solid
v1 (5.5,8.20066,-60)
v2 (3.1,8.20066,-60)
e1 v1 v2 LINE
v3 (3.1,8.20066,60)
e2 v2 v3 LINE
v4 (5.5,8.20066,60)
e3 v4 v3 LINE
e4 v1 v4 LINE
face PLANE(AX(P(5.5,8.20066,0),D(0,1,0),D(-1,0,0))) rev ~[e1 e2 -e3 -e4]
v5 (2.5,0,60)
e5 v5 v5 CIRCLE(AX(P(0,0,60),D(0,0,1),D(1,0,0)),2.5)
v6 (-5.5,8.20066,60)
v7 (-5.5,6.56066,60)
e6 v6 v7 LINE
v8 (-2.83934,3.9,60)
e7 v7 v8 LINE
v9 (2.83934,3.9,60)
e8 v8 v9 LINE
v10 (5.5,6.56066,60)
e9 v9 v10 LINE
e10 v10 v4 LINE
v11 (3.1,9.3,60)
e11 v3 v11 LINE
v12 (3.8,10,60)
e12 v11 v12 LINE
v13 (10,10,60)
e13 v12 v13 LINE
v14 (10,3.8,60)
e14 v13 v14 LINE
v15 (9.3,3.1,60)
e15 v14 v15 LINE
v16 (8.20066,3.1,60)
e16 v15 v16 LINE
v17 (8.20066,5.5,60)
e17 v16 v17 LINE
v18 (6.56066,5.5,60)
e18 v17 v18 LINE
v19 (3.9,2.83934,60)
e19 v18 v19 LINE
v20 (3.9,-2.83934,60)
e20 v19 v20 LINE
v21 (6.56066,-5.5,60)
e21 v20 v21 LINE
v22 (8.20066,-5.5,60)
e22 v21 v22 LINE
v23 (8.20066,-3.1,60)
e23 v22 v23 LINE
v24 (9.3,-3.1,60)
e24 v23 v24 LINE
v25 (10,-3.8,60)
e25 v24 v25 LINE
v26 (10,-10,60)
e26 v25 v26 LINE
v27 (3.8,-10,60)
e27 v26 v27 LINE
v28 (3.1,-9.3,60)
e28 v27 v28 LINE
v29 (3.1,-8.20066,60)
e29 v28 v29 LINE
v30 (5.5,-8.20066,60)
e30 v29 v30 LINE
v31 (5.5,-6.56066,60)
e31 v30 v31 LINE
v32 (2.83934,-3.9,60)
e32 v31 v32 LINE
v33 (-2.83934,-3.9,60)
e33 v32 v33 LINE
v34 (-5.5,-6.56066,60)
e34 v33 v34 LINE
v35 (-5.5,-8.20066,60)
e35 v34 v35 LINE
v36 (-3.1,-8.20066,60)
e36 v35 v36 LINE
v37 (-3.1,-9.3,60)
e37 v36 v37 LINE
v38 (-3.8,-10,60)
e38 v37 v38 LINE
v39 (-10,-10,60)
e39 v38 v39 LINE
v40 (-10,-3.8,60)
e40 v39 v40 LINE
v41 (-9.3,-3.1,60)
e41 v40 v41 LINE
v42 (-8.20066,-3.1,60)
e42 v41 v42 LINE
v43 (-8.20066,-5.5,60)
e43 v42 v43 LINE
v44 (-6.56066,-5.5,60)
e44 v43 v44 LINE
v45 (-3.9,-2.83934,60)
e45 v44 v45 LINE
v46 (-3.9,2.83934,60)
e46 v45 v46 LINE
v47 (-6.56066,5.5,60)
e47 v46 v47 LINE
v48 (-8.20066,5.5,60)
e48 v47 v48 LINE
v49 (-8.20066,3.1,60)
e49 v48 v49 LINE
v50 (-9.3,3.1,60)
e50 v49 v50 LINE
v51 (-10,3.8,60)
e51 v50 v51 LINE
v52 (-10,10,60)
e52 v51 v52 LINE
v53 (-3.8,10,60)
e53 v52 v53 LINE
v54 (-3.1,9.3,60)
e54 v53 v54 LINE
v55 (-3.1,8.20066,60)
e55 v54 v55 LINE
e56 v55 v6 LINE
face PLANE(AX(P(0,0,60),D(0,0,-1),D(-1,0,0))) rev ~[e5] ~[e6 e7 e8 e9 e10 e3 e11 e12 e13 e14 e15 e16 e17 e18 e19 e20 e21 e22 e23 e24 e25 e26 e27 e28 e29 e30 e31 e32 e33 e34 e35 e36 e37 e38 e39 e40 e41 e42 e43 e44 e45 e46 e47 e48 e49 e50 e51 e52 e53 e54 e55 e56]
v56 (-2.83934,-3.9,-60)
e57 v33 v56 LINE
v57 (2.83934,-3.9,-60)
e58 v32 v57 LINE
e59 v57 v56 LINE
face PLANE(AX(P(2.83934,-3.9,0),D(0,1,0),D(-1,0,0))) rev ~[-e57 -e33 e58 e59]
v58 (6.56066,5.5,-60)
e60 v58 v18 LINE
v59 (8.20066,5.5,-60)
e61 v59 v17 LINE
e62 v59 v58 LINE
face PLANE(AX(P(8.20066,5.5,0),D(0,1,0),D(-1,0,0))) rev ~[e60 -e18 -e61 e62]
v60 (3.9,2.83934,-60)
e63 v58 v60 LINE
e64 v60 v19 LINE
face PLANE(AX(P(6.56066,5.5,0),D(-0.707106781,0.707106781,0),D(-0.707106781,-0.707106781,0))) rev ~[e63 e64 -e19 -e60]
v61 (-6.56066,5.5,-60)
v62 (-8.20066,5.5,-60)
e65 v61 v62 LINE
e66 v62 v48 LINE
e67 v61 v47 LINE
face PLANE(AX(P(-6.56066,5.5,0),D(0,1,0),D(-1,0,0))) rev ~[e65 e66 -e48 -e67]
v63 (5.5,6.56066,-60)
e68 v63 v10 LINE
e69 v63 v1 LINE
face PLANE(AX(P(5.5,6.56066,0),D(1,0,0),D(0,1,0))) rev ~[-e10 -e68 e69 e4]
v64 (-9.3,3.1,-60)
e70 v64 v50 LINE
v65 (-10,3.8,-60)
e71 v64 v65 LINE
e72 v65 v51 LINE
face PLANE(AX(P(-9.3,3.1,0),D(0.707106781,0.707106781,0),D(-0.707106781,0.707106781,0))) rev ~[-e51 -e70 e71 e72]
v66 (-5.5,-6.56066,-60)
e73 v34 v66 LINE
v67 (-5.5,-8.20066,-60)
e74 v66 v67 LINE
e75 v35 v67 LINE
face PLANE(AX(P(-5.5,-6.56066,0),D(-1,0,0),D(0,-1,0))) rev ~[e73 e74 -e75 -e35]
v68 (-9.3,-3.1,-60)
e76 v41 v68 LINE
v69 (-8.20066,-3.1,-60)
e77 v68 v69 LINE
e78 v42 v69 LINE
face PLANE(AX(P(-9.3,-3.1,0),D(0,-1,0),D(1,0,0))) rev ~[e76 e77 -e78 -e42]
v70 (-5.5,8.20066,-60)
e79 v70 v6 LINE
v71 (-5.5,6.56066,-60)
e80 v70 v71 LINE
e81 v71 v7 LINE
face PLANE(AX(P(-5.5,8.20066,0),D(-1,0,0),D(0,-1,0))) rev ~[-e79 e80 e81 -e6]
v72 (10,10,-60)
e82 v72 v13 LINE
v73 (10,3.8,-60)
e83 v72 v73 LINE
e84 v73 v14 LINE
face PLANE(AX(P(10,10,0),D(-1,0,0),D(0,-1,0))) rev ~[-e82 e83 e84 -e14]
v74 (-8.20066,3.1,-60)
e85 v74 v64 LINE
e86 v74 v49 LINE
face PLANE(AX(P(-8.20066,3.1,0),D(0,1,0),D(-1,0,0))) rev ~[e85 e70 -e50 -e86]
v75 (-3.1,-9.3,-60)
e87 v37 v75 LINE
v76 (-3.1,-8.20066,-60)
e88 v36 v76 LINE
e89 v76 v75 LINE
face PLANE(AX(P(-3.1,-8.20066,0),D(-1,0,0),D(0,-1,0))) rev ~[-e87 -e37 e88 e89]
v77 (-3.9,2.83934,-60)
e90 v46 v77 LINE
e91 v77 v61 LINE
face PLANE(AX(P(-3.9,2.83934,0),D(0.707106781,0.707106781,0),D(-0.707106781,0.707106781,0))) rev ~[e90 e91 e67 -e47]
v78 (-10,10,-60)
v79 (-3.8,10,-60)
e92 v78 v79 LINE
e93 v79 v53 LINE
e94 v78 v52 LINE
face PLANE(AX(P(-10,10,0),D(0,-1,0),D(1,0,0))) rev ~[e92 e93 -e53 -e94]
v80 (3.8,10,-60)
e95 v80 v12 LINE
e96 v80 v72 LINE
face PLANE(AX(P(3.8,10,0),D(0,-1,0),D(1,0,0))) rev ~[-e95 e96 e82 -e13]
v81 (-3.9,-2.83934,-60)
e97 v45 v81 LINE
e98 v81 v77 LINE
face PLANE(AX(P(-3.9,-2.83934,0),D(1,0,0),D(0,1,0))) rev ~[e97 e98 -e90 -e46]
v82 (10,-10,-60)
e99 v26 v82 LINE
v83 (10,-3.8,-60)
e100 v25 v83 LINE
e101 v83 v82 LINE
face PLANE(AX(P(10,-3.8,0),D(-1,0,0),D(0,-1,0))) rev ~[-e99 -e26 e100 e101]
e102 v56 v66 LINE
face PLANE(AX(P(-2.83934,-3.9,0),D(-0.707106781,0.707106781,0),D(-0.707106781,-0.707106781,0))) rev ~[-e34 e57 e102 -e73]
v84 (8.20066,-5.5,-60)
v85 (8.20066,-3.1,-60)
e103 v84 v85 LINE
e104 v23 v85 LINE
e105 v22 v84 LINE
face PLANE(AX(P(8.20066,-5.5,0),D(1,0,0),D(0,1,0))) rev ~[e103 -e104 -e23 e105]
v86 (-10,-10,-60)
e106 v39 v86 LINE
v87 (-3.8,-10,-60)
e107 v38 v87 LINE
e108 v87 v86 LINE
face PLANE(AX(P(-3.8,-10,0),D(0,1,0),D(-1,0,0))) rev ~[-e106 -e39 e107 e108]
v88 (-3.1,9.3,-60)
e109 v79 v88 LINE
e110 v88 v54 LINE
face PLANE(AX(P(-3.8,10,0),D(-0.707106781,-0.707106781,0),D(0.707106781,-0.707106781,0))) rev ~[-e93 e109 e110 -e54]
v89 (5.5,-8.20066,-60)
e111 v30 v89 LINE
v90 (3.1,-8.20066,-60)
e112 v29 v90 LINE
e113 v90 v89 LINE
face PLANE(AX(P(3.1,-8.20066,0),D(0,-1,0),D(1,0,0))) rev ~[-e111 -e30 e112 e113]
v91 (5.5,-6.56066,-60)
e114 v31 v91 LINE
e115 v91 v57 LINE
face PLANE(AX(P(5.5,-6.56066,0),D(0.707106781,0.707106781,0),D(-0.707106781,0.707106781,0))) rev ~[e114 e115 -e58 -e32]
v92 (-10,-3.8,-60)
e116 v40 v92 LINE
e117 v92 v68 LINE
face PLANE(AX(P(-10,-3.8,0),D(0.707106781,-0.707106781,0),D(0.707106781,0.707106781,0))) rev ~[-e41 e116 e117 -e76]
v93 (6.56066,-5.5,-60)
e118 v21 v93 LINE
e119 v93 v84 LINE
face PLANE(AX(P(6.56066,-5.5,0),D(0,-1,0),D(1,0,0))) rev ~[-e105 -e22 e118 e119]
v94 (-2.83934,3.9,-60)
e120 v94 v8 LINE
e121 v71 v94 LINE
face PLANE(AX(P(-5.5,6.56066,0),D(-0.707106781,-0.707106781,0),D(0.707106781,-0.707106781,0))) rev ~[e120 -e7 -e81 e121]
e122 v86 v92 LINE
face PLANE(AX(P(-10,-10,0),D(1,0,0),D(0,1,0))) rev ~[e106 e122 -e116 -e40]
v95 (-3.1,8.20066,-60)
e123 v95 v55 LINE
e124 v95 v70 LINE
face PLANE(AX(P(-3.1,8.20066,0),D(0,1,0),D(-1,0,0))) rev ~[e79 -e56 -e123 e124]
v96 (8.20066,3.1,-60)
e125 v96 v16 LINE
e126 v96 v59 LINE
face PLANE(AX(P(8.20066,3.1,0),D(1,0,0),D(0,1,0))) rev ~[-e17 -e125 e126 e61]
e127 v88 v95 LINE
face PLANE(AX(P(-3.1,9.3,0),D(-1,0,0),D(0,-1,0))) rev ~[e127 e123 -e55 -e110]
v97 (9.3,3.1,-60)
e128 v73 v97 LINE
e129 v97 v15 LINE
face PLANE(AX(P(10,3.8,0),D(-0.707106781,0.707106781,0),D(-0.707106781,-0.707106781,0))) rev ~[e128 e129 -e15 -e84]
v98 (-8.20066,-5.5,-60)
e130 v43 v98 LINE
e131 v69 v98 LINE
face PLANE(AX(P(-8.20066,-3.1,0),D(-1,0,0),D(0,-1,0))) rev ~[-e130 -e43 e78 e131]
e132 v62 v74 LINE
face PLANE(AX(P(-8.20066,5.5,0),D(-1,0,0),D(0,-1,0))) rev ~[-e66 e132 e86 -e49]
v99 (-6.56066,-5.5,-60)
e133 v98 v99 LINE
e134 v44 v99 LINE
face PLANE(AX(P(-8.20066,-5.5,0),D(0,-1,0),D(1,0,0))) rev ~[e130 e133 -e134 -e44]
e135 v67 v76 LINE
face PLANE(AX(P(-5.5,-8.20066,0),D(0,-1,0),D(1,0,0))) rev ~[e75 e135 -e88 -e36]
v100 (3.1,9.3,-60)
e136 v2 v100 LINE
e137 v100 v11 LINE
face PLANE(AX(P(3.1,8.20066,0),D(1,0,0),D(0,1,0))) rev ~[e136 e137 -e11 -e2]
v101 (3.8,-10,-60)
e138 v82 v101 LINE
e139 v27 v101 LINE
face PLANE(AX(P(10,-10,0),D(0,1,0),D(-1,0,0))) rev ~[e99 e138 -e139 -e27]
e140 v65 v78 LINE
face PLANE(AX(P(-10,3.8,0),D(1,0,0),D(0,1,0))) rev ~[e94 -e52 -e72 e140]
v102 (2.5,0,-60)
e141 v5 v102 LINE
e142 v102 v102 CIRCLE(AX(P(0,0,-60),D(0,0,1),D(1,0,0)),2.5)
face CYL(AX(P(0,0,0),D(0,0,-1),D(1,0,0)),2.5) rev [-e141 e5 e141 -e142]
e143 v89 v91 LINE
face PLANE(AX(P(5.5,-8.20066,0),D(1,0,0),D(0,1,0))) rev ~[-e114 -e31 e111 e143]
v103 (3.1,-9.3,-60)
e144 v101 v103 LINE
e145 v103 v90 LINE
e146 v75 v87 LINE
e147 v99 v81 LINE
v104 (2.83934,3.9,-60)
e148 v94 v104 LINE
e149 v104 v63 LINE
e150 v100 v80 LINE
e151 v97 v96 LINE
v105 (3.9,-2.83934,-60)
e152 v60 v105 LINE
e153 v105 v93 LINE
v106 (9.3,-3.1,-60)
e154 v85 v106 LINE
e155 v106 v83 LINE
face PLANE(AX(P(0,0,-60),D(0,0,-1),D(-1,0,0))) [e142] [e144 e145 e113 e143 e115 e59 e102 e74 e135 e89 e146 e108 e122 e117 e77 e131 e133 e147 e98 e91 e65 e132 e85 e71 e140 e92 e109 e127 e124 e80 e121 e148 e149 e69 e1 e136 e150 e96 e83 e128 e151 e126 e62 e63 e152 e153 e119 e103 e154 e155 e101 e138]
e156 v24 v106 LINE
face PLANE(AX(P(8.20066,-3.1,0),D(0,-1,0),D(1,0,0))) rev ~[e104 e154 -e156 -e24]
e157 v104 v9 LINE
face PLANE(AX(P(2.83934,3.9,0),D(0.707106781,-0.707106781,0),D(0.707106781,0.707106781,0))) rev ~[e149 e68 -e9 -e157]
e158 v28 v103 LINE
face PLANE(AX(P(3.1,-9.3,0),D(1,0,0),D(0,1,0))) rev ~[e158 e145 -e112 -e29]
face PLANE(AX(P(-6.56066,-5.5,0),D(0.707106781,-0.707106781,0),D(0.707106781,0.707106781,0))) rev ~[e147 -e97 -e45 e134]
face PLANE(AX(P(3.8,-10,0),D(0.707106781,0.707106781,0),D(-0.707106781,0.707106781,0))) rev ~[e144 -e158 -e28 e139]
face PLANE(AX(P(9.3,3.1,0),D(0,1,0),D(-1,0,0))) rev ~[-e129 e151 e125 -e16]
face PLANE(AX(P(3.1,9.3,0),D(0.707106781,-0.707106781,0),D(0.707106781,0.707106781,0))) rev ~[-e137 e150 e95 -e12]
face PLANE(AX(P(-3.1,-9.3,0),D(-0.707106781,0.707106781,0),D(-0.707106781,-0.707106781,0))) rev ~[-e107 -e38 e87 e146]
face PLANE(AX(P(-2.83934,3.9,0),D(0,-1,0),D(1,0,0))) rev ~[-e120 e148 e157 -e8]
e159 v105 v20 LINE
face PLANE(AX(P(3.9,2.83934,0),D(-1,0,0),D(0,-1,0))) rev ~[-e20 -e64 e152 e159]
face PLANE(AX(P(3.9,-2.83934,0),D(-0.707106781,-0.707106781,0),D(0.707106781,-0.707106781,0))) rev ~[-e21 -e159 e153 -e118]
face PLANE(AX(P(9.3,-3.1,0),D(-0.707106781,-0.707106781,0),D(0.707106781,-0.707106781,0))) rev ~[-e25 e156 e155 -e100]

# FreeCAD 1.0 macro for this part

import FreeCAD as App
import Part
import Sketcher
from FreeCAD import Vector
Q = App.Units.Quantity

doc = App.newDocument("Part")
body = doc.addObject("PartDesign::Body", "Body")

# Sketch on XY plane
sketch1 = body.newObject("Sketcher::SketchObject", "Sketch")
sketch1.AttachmentSupport = (doc.getObject("XY_Plane"), [""])
sketch1.MapMode = "FlatFace"
sketch1.addGeometry([
    Part.LineSegment(Vector(6.56066, -5.5, 0), Vector(3.9, -2.83934, 0)),  # 0
    Part.LineSegment(Vector(3.9, -2.83934, 0), Vector(3.9, 2.83934, 0)),  # 1
    Part.LineSegment(Vector(3.9, 2.83934, 0), Vector(6.56066, 5.5, 0)),  # 2
    Part.LineSegment(Vector(6.56066, 5.5, 0), Vector(8.20066, 5.5, 0)),  # 3
    Part.LineSegment(Vector(8.20066, 5.5, 0), Vector(8.20066, 3.1, 0)),  # 4
    Part.LineSegment(Vector(8.20066, 3.1, 0), Vector(9.3, 3.1, 0)),  # 5
    Part.LineSegment(Vector(9.3, 3.1, 0), Vector(10, 3.8, 0)),  # 6
    Part.LineSegment(Vector(10, 3.8, 0), Vector(10, 10, 0)),  # 7
    Part.LineSegment(Vector(10, 10, 0), Vector(3.8, 10, 0)),  # 8
    Part.LineSegment(Vector(3.8, 10, 0), Vector(3.1, 9.3, 0)),  # 9
    Part.LineSegment(Vector(3.1, 9.3, 0), Vector(3.1, 8.20066, 0)),  # 10
    Part.LineSegment(Vector(3.1, 8.20066, 0), Vector(5.5, 8.20066, 0)),  # 11
    Part.LineSegment(Vector(5.5, 8.20066, 0), Vector(5.5, 6.56066, 0)),  # 12
    Part.LineSegment(Vector(5.5, 6.56066, 0), Vector(2.83934, 3.9, 0)),  # 13
    Part.LineSegment(Vector(2.83934, 3.9, 0), Vector(-2.83934, 3.9, 0)),  # 14
    Part.LineSegment(Vector(-2.83934, 3.9, 0), Vector(-5.5, 6.56066, 0)),  # 15
    Part.LineSegment(Vector(-5.5, 6.56066, 0), Vector(-5.5, 8.20066, 0)),  # 16
    Part.LineSegment(Vector(-5.5, 8.20066, 0), Vector(-3.1, 8.20066, 0)),  # 17
    Part.LineSegment(Vector(-3.1, 8.20066, 0), Vector(-3.1, 9.3, 0)),  # 18
    Part.LineSegment(Vector(-3.1, 9.3, 0), Vector(-3.8, 10, 0)),  # 19
    Part.LineSegment(Vector(-3.8, 10, 0), Vector(-10, 10, 0)),  # 20
    Part.LineSegment(Vector(-10, 10, 0), Vector(-10, 3.8, 0)),  # 21
    Part.LineSegment(Vector(-10, 3.8, 0), Vector(-9.3, 3.1, 0)),  # 22
    Part.LineSegment(Vector(-9.3, 3.1, 0), Vector(-8.20066, 3.1, 0)),  # 23
    Part.LineSegment(Vector(-8.20066, 3.1, 0), Vector(-8.20066, 5.5, 0)),  # 24
    Part.LineSegment(Vector(-8.20066, 5.5, 0), Vector(-6.56066, 5.5, 0)),  # 25
    Part.LineSegment(Vector(-6.56066, 5.5, 0), Vector(-3.9, 2.83934, 0)),  # 26
    Part.LineSegment(Vector(-3.9, 2.83934, 0), Vector(-3.9, -2.83934, 0)),  # 27
    Part.LineSegment(Vector(-3.9, -2.83934, 0), Vector(-6.56066, -5.5, 0)),  # 28
    Part.LineSegment(Vector(-6.56066, -5.5, 0), Vector(-8.20066, -5.5, 0)),  # 29
    Part.LineSegment(Vector(-8.20066, -5.5, 0), Vector(-8.20066, -3.1, 0)),  # 30
    Part.LineSegment(Vector(-8.20066, -3.1, 0), Vector(-9.3, -3.1, 0)),  # 31
    Part.LineSegment(Vector(-9.3, -3.1, 0), Vector(-10, -3.8, 0)),  # 32
    Part.LineSegment(Vector(-10, -3.8, 0), Vector(-10, -10, 0)),  # 33
    Part.LineSegment(Vector(-10, -10, 0), Vector(-3.8, -10, 0)),  # 34
    Part.LineSegment(Vector(-3.8, -10, 0), Vector(-3.1, -9.3, 0)),  # 35
    Part.LineSegment(Vector(-3.1, -9.3, 0), Vector(-3.1, -8.20066, 0)),  # 36
    Part.LineSegment(Vector(-3.1, -8.20066, 0), Vector(-5.5, -8.20066, 0)),  # 37
    Part.LineSegment(Vector(-5.5, -8.20066, 0), Vector(-5.5, -6.56066, 0)),  # 38
    Part.LineSegment(Vector(-5.5, -6.56066, 0), Vector(-2.83934, -3.9, 0)),  # 39
    Part.LineSegment(Vector(-2.83934, -3.9, 0), Vector(2.83934, -3.9, 0)),  # 40
    Part.LineSegment(Vector(2.83934, -3.9, 0), Vector(5.5, -6.56066, 0)),  # 41
    Part.LineSegment(Vector(5.5, -6.56066, 0), Vector(5.5, -8.20066, 0)),  # 42
    Part.LineSegment(Vector(5.5, -8.20066, 0), Vector(3.1, -8.20066, 0)),  # 43
    Part.LineSegment(Vector(3.1, -8.20066, 0), Vector(3.1, -9.3, 0)),  # 44
    Part.LineSegment(Vector(3.1, -9.3, 0), Vector(3.8, -10, 0)),  # 45
    Part.LineSegment(Vector(3.8, -10, 0), Vector(10, -10, 0)),  # 46
    Part.LineSegment(Vector(10, -10, 0), Vector(10, -3.8, 0)),  # 47
    Part.LineSegment(Vector(10, -3.8, 0), Vector(9.3, -3.1, 0)),  # 48
    Part.LineSegment(Vector(9.3, -3.1, 0), Vector(8.20066, -3.1, 0)),  # 49
    Part.LineSegment(Vector(8.20066, -3.1, 0), Vector(8.20066, -5.5, 0)),  # 50
    Part.LineSegment(Vector(8.20066, -5.5, 0), Vector(6.56066, -5.5, 0)),  # 51
    Part.Circle(Vector(0, 0, 0), Vector(0, 0, 1), 2.5),  # 52
], False)
sketch1.addConstraint([
    Sketcher.Constraint("Coincident", 0, 2, 1, 1),
    Sketcher.Constraint("Coincident", 1, 2, 2, 1),
    Sketcher.Constraint("Coincident", 2, 2, 3, 1),
    Sketcher.Constraint("Coincident", 3, 2, 4, 1),
    Sketcher.Constraint("Coincident", 4, 2, 5, 1),
    Sketcher.Constraint("Coincident", 5, 2, 6, 1),
    Sketcher.Constraint("Coincident", 6, 2, 7, 1),
    Sketcher.Constraint("Coincident", 7, 2, 8, 1),
    Sketcher.Constraint("Coincident", 8, 2, 9, 1),
    Sketcher.Constraint("Coincident", 9, 2, 10, 1),
    Sketcher.Constraint("Coincident", 10, 2, 11, 1),
    Sketcher.Constraint("Coincident", 11, 2, 12, 1),
    Sketcher.Constraint("Coincident", 12, 2, 13, 1),
    Sketcher.Constraint("Coincident", 13, 2, 14, 1),
    Sketcher.Constraint("Coincident", 14, 2, 15, 1),
    Sketcher.Constraint("Coincident", 15, 2, 16, 1),
    Sketcher.Constraint("Coincident", 16, 2, 17, 1),
    Sketcher.Constraint("Coincident", 17, 2, 18, 1),
    Sketcher.Constraint("Coincident", 18, 2, 19, 1),
    Sketcher.Constraint("Coincident", 19, 2, 20, 1),
    Sketcher.Constraint("Coincident", 20, 2, 21, 1),
    Sketcher.Constraint("Coincident", 21, 2, 22, 1),
    Sketcher.Constraint("Coincident", 22, 2, 23, 1),
    Sketcher.Constraint("Coincident", 23, 2, 24, 1),
    Sketcher.Constraint("Coincident", 24, 2, 25, 1),
    Sketcher.Constraint("Coincident", 25, 2, 26, 1),
    Sketcher.Constraint("Coincident", 26, 2, 27, 1),
    Sketcher.Constraint("Coincident", 27, 2, 28, 1),
    Sketcher.Constraint("Coincident", 28, 2, 29, 1),
    Sketcher.Constraint("Coincident", 29, 2, 30, 1),
    Sketcher.Constraint("Coincident", 30, 2, 31, 1),
    Sketcher.Constraint("Coincident", 31, 2, 32, 1),
    Sketcher.Constraint("Coincident", 32, 2, 33, 1),
    Sketcher.Constraint("Coincident", 33, 2, 34, 1),
    Sketcher.Constraint("Coincident", 34, 2, 35, 1),
    Sketcher.Constraint("Coincident", 35, 2, 36, 1),
    Sketcher.Constraint("Coincident", 36, 2, 37, 1),
    Sketcher.Constraint("Coincident", 37, 2, 38, 1),
    Sketcher.Constraint("Coincident", 38, 2, 39, 1),
    Sketcher.Constraint("Coincident", 39, 2, 40, 1),
    Sketcher.Constraint("Coincident", 40, 2, 41, 1),
    Sketcher.Constraint("Coincident", 41, 2, 42, 1),
    Sketcher.Constraint("Coincident", 42, 2, 43, 1),
    Sketcher.Constraint("Coincident", 43, 2, 44, 1),
    Sketcher.Constraint("Coincident", 44, 2, 45, 1),
    Sketcher.Constraint("Coincident", 45, 2, 46, 1),
    Sketcher.Constraint("Coincident", 46, 2, 47, 1),
    Sketcher.Constraint("Coincident", 47, 2, 48, 1),
    Sketcher.Constraint("Coincident", 48, 2, 49, 1),
    Sketcher.Constraint("Coincident", 49, 2, 50, 1),
    Sketcher.Constraint("Coincident", 50, 2, 51, 1),
    Sketcher.Constraint("Coincident", 51, 2, 0, 1),
    Sketcher.Constraint("Vertical", 1),
    Sketcher.Constraint("Horizontal", 3),
    Sketcher.Constraint("Vertical", 4),
    Sketcher.Constraint("Horizontal", 5),
    Sketcher.Constraint("Vertical", 7),
    Sketcher.Constraint("Horizontal", 8),
    Sketcher.Constraint("Vertical", 10),
    Sketcher.Constraint("Horizontal", 11),
    Sketcher.Constraint("Vertical", 12),
    Sketcher.Constraint("Horizontal", 14),
    Sketcher.Constraint("Vertical", 16),
    Sketcher.Constraint("Horizontal", 17),
    Sketcher.Constraint("Vertical", 18),
    Sketcher.Constraint("Horizontal", 20),
    Sketcher.Constraint("Vertical", 21),
    Sketcher.Constraint("Horizontal", 23),
    Sketcher.Constraint("Vertical", 24),
    Sketcher.Constraint("Horizontal", 25),
    Sketcher.Constraint("Vertical", 27),
    Sketcher.Constraint("Horizontal", 29),
    Sketcher.Constraint("Vertical", 30),
    Sketcher.Constraint("Horizontal", 31),
    Sketcher.Constraint("Vertical", 33),
    Sketcher.Constraint("Horizontal", 34),
    Sketcher.Constraint("Vertical", 36),
    Sketcher.Constraint("Horizontal", 37),
    Sketcher.Constraint("Vertical", 38),
    Sketcher.Constraint("Horizontal", 40),
    Sketcher.Constraint("Vertical", 42),
    Sketcher.Constraint("Horizontal", 43),
    Sketcher.Constraint("Vertical", 44),
    Sketcher.Constraint("Horizontal", 46),
    Sketcher.Constraint("Vertical", 47),
    Sketcher.Constraint("Horizontal", 49),
    Sketcher.Constraint("Vertical", 50),
    Sketcher.Constraint("Horizontal", 51),
    Sketcher.Constraint("Coincident", 52, 3, -1, 1),
    Sketcher.Constraint("Symmetric", 0, 2, 26, 2, -1, 1),
    Sketcher.Constraint("Symmetric", 2, 2, 28, 2, -1, 1),
    Sketcher.Constraint("Symmetric", 4, 2, 30, 2, -1, 1),
    Sketcher.Constraint("Symmetric", 6, 2, 32, 2, -1, 1),
    Sketcher.Constraint("Symmetric", 8, 2, 34, 2, -1, 1),
    Sketcher.Constraint("Symmetric", 9, 2, 35, 2, -1, 1),
    Sketcher.Constraint("Symmetric", 11, 2, 37, 2, -1, 1),
    Sketcher.Constraint("Symmetric", 13, 2, 39, 2, -1, 1),
    Sketcher.Constraint("Symmetric", 15, 2, 41, 2, -1, 1),
    Sketcher.Constraint("Symmetric", 17, 2, 43, 2, -1, 1),
    Sketcher.Constraint("Symmetric", 19, 2, 45, 2, -1, 1),
    Sketcher.Constraint("Symmetric", 21, 2, 47, 2, -1, 1),
    Sketcher.Constraint("Symmetric", 22, 2, 48, 2, -1, 1),
    Sketcher.Constraint("Symmetric", 24, 2, 50, 2, -1, 1),
    Sketcher.Constraint("Symmetric", 12, 2, 15, 2, -2),
    Sketcher.Constraint("Symmetric", 10, 2, 17, 2, -2),
    Sketcher.Constraint("Symmetric", 8, 2, 19, 2, -2),
    Sketcher.Constraint("Symmetric", 6, 2, 21, 2, -2),
    Sketcher.Constraint("Symmetric", 5, 2, 22, 2, -2),
    Sketcher.Constraint("Symmetric", 3, 2, 24, 2, -2),
    Sketcher.Constraint("Perpendicular", 0, 2),
    Sketcher.Constraint("Parallel", 2, 6),
    Sketcher.Constraint("Parallel", 6, 9),
    Sketcher.Constraint("Parallel", 9, 13),
    Sketcher.Constraint("Perpendicular", 13, 15),
    Sketcher.Constraint("Parallel", 15, 19),
    Sketcher.Constraint("Parallel", 19, 22),
    Sketcher.Constraint("Parallel", 22, 26),
    Sketcher.Constraint("Perpendicular", 26, 28),
    Sketcher.Constraint("Parallel", 28, 32),
    Sketcher.Constraint("Parallel", 35, 39),
    Sketcher.Constraint("Perpendicular", 39, 41),
    Sketcher.Constraint("Parallel", 41, 45),
    Sketcher.Constraint("Horizontal", 1, 2, 26, 2),
    Sketcher.Constraint("Equal", 40, 1),
    Sketcher.Constraint("Equal", 43, 4),
    Sketcher.Constraint("Equal", 46, 7),
    Sketcher.Constraint("Equal", 49, 10),
    Sketcher.Constraint("Equal", 51, 12),
    Sketcher.Constraint("Equal", 6, 9),
    Sketcher.Constraint("Equal", 2, 13),
    Sketcher.Constraint("Diameter", 52, Q("5 mm")),
    Sketcher.Constraint("DistanceX", 8, 2, 8, 1, Q("6.2 mm")),
    Sketcher.Constraint("DistanceX", 11, 1, 11, 2, Q("2.4 mm")),
    Sketcher.Constraint("DistanceX", -1, 1, 6, 2, Q("10 mm")),
    Sketcher.Constraint("DistanceX", 3, 1, 3, 2, Q("1.64 mm")),
    Sketcher.Constraint("DistanceX", -1, 1, 0, 2, Q("3.9 mm")),
    Sketcher.Constraint("DistanceY", -1, 1, 2, 2, Q("5.5 mm")),
    Sketcher.Constraint("DistanceX", 5, 1, 5, 2, Q("1.09934 mm")),
])
pad1 = body.newObject("PartDesign::Pad", "Pad")
pad1.Profile = sketch1
pad1.Length = 120
pad1.Midplane = True

doc.recompute()
